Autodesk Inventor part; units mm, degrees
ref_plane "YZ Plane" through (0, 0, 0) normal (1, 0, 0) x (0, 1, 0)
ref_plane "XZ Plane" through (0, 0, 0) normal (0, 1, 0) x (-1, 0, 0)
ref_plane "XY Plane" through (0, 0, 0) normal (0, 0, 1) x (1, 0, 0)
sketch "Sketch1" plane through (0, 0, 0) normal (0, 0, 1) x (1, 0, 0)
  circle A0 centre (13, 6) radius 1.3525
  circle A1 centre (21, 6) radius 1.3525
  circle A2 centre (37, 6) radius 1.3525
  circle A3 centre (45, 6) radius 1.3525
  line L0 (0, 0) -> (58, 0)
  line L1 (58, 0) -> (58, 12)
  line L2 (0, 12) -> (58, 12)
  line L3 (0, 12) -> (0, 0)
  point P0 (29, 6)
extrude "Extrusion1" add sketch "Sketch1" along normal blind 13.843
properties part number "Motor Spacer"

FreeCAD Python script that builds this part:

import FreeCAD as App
import Part
import Sketcher

V = App.Vector


def add_polygon(sketch, points):
    """Adds a closed chain of lines whose ends are joined by coincident constraints."""
    first, n = sketch.GeometryCount, len(points)
    for a, b in zip(points, points[1:] + points[:1]):
        sketch.addGeometry(Part.LineSegment(App.Vector(*a, 0), App.Vector(*b, 0)), False)
    for i in range(n):
        sketch.addConstraint(Sketcher.Constraint("Coincident", first + i, 2, first + (i + 1) % n, 1))

doc = App.newDocument("Part")
params = doc.addObject("Spreadsheet::Sheet", "Params")
for row, (alias, value) in enumerate([
    ("sketch1_width", "58 mm"),
    ("sketch1_height", "12 mm"),
    ("pad1_length", "13.843 mm"),
], start=1):
    params.set(f"A{row}", alias)
    params.set(f"B{row}", "=" + value)
    params.setAlias(f"B{row}", alias)

body = doc.addObject("PartDesign::Body", "Body")

sketch1 = body.newObject("Sketcher::SketchObject", "Sketch")
sketch1.AttachmentSupport = (doc.getObject("XY_Plane"), [""])
sketch1.MapMode = "FlatFace"
add_polygon(sketch1, [(0, 12), (0, 0), (58, 0), (58, 12)])
sketch1.addGeometry(Part.Circle(V(13, 6, 0), V(0, 0, 1), 1.4), False)
sketch1.addGeometry(Part.Circle(V(21, 6, 0), V(0, 0, 1), 1.4), False)
sketch1.addGeometry(Part.Circle(V(37, 6, 0), V(0, 0, 1), 1.4), False)
sketch1.addGeometry(Part.Circle(V(45, 6, 0), V(0, 0, 1), 1.4), False)
sketch1.addConstraint(Sketcher.Constraint("Vertical", 0))
sketch1.addConstraint(Sketcher.Constraint("Horizontal", 1))
sketch1.addConstraint(Sketcher.Constraint("Vertical", 2))
sketch1.addConstraint(Sketcher.Constraint("Horizontal", 3))
sketch1.addConstraint(Sketcher.Constraint("Coincident", 0, 2, -1, 1))
sketch1.addConstraint(Sketcher.Constraint("Equal", 4, 5))
sketch1.addConstraint(Sketcher.Constraint("Equal", 5, 6))
sketch1.addConstraint(Sketcher.Constraint("Equal", 6, 7))
sketch1.addConstraint(Sketcher.Constraint("Horizontal", 4, 3, 5, 3))
sketch1.addConstraint(Sketcher.Constraint("Horizontal", 5, 3, 6, 3))
sketch1.addConstraint(Sketcher.Constraint("Horizontal", 6, 3, 7, 3))
sketch1.addConstraint(Sketcher.Constraint("DistanceX", 1, 1, 1, 2, 58.0))
sketch1.addConstraint(Sketcher.Constraint("DistanceY", 0, 2, 0, 1, 12.0))
sketch1.addConstraint(Sketcher.Constraint("Diameter", 4, 2.705))
sketch1.addConstraint(Sketcher.Constraint("DistanceX", -1, 1, 4, 3, 13.0))
sketch1.addConstraint(Sketcher.Constraint("DistanceY", -1, 1, 4, 3, 6.0))
sketch1.addConstraint(Sketcher.Constraint("DistanceX", -1, 1, 5, 3, 21.0))
sketch1.addConstraint(Sketcher.Constraint("DistanceX", -1, 1, 6, 3, 37.0))
sketch1.addConstraint(Sketcher.Constraint("DistanceX", -1, 1, 7, 3, 45.0))
sketch1.setExpression("Constraints[15]", "Params.sketch1_width")
sketch1.setExpression("Constraints[16]", "Params.sketch1_height")
pad1 = body.newObject("PartDesign::Pad", "Pad")
pad1.Profile = sketch1
pad1.setExpression("Length", "Params.pad1_length")

doc.recompute()
